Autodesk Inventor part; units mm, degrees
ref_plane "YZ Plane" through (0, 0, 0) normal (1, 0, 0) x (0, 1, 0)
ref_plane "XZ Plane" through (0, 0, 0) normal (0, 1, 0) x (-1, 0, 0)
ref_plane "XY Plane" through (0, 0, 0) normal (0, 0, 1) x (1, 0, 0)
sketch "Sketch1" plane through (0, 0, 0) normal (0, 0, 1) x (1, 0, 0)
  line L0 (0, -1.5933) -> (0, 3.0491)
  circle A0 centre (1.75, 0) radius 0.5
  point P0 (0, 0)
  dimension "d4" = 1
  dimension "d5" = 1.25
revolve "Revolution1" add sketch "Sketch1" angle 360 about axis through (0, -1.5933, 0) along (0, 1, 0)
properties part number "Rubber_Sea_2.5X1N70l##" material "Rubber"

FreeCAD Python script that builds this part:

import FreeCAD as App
import Part
import Sketcher

V = App.Vector

doc = App.newDocument("Part")
params = doc.addObject("Spreadsheet::Sheet", "Params")
for row, (alias, value) in enumerate([
    ("sketch1_diameter", "1 mm"),
    ("revolution_angle", "360 deg"),
], start=1):
    params.set(f"A{row}", alias)
    params.set(f"B{row}", "=" + value)
    params.setAlias(f"B{row}", alias)

body = doc.addObject("PartDesign::Body", "Body")

# Sketch on XY plane
sketch1 = body.newObject("Sketcher::SketchObject", "Sketch")
sketch1.AttachmentSupport = (doc.getObject("XY_Plane"), [""])
sketch1.MapMode = "FlatFace"
sketch1.addGeometry(Part.Circle(V(1.75, 0, 0), V(0, 0, 1), 0.5), False)
sketch1.addConstraint(Sketcher.Constraint("PointOnObject", 0, 3, -1))
sketch1.addConstraint(Sketcher.Constraint("Diameter", 0, 1.0))
sketch1.addConstraint(Sketcher.Constraint("DistanceX", -1, 1, 0, 3, 1.75))
sketch1.setExpression("Constraints[1]", "Params.sketch1_diameter")
revolution = body.newObject("PartDesign::Revolution", "Revolution")
revolution.Profile = sketch1
revolution.ReferenceAxis = (sketch1, ["V_Axis"])
revolution.setExpression("Angle", "Params.revolution_angle")

doc.recompute()
